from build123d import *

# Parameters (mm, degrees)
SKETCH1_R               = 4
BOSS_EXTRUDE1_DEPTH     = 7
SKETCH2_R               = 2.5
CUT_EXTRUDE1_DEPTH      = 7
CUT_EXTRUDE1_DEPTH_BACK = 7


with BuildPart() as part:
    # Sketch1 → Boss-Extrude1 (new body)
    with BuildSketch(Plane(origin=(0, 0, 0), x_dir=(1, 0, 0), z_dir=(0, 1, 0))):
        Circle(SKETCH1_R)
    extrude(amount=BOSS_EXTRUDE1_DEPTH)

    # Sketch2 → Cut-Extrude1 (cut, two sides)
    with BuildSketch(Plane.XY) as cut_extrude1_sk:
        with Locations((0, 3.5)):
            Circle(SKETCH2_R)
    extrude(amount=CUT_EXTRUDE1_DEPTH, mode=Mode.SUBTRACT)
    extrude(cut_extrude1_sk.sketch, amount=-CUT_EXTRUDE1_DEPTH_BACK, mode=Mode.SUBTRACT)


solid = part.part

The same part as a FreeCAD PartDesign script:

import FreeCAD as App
import Part
import Sketcher
from FreeCAD import Vector

doc = App.newDocument("Part")
params = doc.addObject("Spreadsheet::Sheet", "Params")
for row, (alias, value) in enumerate([
    ("sketch1_diameter", "8 mm"),
    ("pad1_length", "7 mm"),
    ("sketch2_diameter", "5 mm"),
], start=1):
    params.set(f"A{row}", alias)
    params.set(f"B{row}", "=" + value)
    params.setAlias(f"B{row}", alias)

body = doc.addObject("PartDesign::Body", "Body")

# Sketch on XZ plane
sketch1 = doc.addObject("Sketcher::SketchObject", "Sketch")
body.addObject(sketch1)
sketch1.AttachmentSupport = (doc.XZ_Plane, [""])
sketch1.MapMode = "FlatFace"
sketch1.addGeometry(Part.Circle(Vector(0, 0, 0), Vector(0, 0, 1), 4), False)
sketch1.addConstraint([
    Sketcher.Constraint("Coincident", 0, 3, -1, 1),
    Sketcher.Constraint("Diameter", 0, 8.0),
])
sketch1.setExpression("Constraints[1]", "Params.sketch1_diameter")
pad1 = doc.addObject("PartDesign::Pad", "Pad")
body.addObject(pad1)
pad1.Profile = sketch1
pad1.setExpression("Length", "Params.pad1_length")
pad1.Reversed = True

# Sketch on XY plane
sketch2 = doc.addObject("Sketcher::SketchObject", "Sketch001")
body.addObject(sketch2)
sketch2.AttachmentSupport = (doc.XY_Plane, [""])
sketch2.MapMode = "FlatFace"
sketch2.addGeometry(Part.Circle(Vector(0, 3.5, 0), Vector(0, 0, 1), 2.5), False)
sketch2.addConstraint([
    Sketcher.Constraint("PointOnObject", 0, 3, -2),
    Sketcher.Constraint("Diameter", 0, 5.0),
    Sketcher.Constraint("DistanceY", -1, 1, 0, 3, 3.5),
])
sketch2.setExpression("Constraints[1]", "Params.sketch2_diameter")
pocket1 = doc.addObject("PartDesign::Pocket", "Pocket")
body.addObject(pocket1)
pocket1.Profile = sketch2
pocket1.Type = "ThroughAll"
pocket1.Midplane = True

doc.recompute()
